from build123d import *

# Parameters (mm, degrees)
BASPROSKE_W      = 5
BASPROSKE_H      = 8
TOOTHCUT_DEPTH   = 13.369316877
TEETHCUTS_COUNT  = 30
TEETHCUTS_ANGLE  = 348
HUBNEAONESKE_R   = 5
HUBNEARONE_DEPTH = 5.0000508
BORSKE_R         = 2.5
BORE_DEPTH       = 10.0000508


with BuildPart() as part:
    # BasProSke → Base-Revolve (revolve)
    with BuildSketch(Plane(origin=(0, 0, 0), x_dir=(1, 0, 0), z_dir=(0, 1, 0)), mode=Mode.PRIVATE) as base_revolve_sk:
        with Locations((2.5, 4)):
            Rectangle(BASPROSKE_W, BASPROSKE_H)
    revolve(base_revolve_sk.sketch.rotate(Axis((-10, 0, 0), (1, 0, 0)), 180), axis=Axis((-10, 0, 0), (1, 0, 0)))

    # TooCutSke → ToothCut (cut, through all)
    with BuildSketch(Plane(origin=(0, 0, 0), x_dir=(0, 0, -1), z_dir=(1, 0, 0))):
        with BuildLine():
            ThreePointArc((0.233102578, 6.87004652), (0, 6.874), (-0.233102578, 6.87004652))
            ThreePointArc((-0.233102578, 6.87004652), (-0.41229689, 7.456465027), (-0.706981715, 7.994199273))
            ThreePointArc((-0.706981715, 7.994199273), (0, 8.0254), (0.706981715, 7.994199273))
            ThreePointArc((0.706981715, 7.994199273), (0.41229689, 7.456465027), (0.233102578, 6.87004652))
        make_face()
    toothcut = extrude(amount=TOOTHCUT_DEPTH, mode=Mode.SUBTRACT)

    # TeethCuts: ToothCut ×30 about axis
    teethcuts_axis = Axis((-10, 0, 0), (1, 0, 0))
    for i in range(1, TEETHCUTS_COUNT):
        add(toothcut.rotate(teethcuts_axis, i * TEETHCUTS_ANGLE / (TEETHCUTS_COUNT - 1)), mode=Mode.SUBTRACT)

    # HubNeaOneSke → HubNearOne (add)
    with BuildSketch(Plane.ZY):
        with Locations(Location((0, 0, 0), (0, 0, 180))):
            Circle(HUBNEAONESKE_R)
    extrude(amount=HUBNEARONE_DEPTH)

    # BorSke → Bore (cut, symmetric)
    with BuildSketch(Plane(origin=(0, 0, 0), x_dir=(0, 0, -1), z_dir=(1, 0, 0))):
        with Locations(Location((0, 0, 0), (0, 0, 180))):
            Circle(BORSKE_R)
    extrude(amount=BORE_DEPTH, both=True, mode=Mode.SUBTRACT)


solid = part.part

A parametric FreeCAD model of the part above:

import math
import FreeCAD as App
import Part
import Sketcher

V = App.Vector
Q = App.Units.Quantity


def add_polygon(sketch, points):
    """Adds a closed chain of lines whose ends are joined by coincident constraints."""
    first, n = sketch.GeometryCount, len(points)
    for a, b in zip(points, points[1:] + points[:1]):
        sketch.addGeometry(Part.LineSegment(App.Vector(*a, 0), App.Vector(*b, 0)), False)
    for i in range(n):
        sketch.addConstraint(Sketcher.Constraint("Coincident", first + i, 2, first + (i + 1) % n, 1))

doc = App.newDocument("Part")
params = doc.addObject("Spreadsheet::Sheet", "Params")
for row, (alias, value) in enumerate([
    ("sketch1_width", "5 mm"),
    ("sketch1_height", "8 mm"),
    ("revolution_angle", "360 deg"),
    ("sketch2_radius", "3 mm"),
    ("sketch3_diameter", "10 mm"),
    ("pad1_length", "5.000051 mm"),
    ("sketch4_diameter", "5 mm"),
    ("pocket2_length", "20.000102 mm"),
], start=1):
    params.set(f"A{row}", alias)
    params.set(f"B{row}", "=" + value)
    params.setAlias(f"B{row}", alias)

body = doc.addObject("PartDesign::Body", "Body")

# Sketch on XZ plane
sketch1 = doc.addObject("Sketcher::SketchObject", "Sketch")
body.addObject(sketch1)
sketch1.AttachmentSupport = (doc.XZ_Plane, [""])
sketch1.MapMode = "FlatFace"
add_polygon(sketch1, [(0, -8), (0, 0), (5, 0), (5, -8)])  # lines 0-3
sketch1.addConstraint([
    Sketcher.Constraint("Vertical", 0),
    Sketcher.Constraint("Horizontal", 1),
    Sketcher.Constraint("Vertical", 2),
    Sketcher.Constraint("Horizontal", 3),
    Sketcher.Constraint("Coincident", 0, 2, -1, 1),
    Sketcher.Constraint("DistanceX", 1, 1, 1, 2, Q("5 mm")),
    Sketcher.Constraint("DistanceY", 0, 1, 0, 2, Q("8 mm")),
])
sketch1.setExpression("Constraints[9]", "Params.sketch1_width")
sketch1.setExpression("Constraints[10]", "Params.sketch1_height")
revolution = doc.addObject("PartDesign::Revolution", "Revolution")
body.addObject(revolution)
revolution.Profile = sketch1
revolution.ReferenceAxis = (sketch1, ["H_Axis"])
revolution.setExpression("Angle", "Params.revolution_angle")

# Sketch on YZ plane
sketch2 = doc.addObject("Sketcher::SketchObject", "Sketch001")
body.addObject(sketch2)
sketch2.AttachmentSupport = (doc.YZ_Plane, [""])
sketch2.MapMode = "FlatFace"
sketch2.addGeometry([
    Part.ArcOfCircle(Part.Circle(V(0, 0, 0), V(0, 0, 1), 6.87), math.radians(-1.94), math.radians(1.94)),
    Part.ArcOfCircle(Part.Circle(V(6.29, -3.18, 0), V(0, 0, 1), 3), math.radians(55), math.radians(79)),
    Part.ArcOfCircle(Part.Circle(V(0, 0, 0), V(0, 0, 1), 8.03), math.radians(-5.05), math.radians(5.05)),
    Part.ArcOfCircle(Part.Circle(V(6.29, 3.18, 0), V(0, 0, 1), 3), math.radians(-79), math.radians(-55)),
], False)
sketch2.addConstraint([
    Sketcher.Constraint("Coincident", 0, 1, 1, 2),
    Sketcher.Constraint("Coincident", 1, 1, 2, 1),
    Sketcher.Constraint("Coincident", 2, 2, 3, 2),
    Sketcher.Constraint("Coincident", 3, 1, 0, 2),
    Sketcher.Constraint("Coincident", 0, 3, -1, 1),
    Sketcher.Constraint("Coincident", 2, 3, -1, 1),
    Sketcher.Constraint("Equal", 1, 3),
    Sketcher.Constraint("Symmetric", 1, 3, 3, 3, -1),
    Sketcher.Constraint("Radius", 1, Q("3 mm")),
    Sketcher.Constraint("Radius", 0, Q("6.874 mm")),
    Sketcher.Constraint("Radius", 2, Q("8.0254 mm")),
    Sketcher.Constraint("DistanceX", -1, 1, 1, 1, Q("7.994199 mm")),
    Sketcher.Constraint("DistanceY", 1, 1, 3, 3, Q("3.883699 mm")),
])
sketch2.setExpression("Constraints[8]", "Params.sketch2_radius")
pocket1 = doc.addObject("PartDesign::Pocket", "Pocket")
body.addObject(pocket1)
pocket1.Profile = sketch2
pocket1.Type = "ThroughAll"
pocket1.Reversed = True
doc.recompute()

polarpattern = doc.addObject("PartDesign::PolarPattern", "PolarPattern")
body.addObject(polarpattern)
polarpattern.Originals = [pocket1]
polarpattern.Axis = (doc.X_Axis, [""])
polarpattern.Angle = 360
polarpattern.Occurrences = 30
body.Tip = polarpattern

# Sketch on YZ plane
sketch3 = doc.addObject("Sketcher::SketchObject", "Sketch002")
body.addObject(sketch3)
sketch3.AttachmentSupport = (doc.YZ_Plane, [""])
sketch3.MapMode = "FlatFace"
sketch3.addGeometry(Part.Circle(V(0, 0, 0), V(0, 0, 1), 5), False)
sketch3.addConstraint([
    Sketcher.Constraint("Coincident", 0, 3, -1, 1),
    Sketcher.Constraint("Diameter", 0, Q("10 mm")),
])
sketch3.setExpression("Constraints[1]", "Params.sketch3_diameter")
pad1 = doc.addObject("PartDesign::Pad", "Pad")
body.addObject(pad1)
pad1.Profile = sketch3
pad1.setExpression("Length", "Params.pad1_length")
pad1.Reversed = True

# Sketch on YZ plane
sketch4 = doc.addObject("Sketcher::SketchObject", "Sketch003")
body.addObject(sketch4)
sketch4.AttachmentSupport = (doc.YZ_Plane, [""])
sketch4.MapMode = "FlatFace"
sketch4.addGeometry(Part.Circle(V(0, 0, 0), V(0, 0, 1), 2.5), False)
sketch4.addConstraint([
    Sketcher.Constraint("Coincident", 0, 3, -1, 1),
    Sketcher.Constraint("Diameter", 0, Q("5 mm")),
])
sketch4.setExpression("Constraints[1]", "Params.sketch4_diameter")
pocket2 = doc.addObject("PartDesign::Pocket", "Pocket001")
body.addObject(pocket2)
pocket2.Profile = sketch4
pocket2.setExpression("Length", "Params.pocket2_length")
pocket2.Midplane = True

doc.recompute()
